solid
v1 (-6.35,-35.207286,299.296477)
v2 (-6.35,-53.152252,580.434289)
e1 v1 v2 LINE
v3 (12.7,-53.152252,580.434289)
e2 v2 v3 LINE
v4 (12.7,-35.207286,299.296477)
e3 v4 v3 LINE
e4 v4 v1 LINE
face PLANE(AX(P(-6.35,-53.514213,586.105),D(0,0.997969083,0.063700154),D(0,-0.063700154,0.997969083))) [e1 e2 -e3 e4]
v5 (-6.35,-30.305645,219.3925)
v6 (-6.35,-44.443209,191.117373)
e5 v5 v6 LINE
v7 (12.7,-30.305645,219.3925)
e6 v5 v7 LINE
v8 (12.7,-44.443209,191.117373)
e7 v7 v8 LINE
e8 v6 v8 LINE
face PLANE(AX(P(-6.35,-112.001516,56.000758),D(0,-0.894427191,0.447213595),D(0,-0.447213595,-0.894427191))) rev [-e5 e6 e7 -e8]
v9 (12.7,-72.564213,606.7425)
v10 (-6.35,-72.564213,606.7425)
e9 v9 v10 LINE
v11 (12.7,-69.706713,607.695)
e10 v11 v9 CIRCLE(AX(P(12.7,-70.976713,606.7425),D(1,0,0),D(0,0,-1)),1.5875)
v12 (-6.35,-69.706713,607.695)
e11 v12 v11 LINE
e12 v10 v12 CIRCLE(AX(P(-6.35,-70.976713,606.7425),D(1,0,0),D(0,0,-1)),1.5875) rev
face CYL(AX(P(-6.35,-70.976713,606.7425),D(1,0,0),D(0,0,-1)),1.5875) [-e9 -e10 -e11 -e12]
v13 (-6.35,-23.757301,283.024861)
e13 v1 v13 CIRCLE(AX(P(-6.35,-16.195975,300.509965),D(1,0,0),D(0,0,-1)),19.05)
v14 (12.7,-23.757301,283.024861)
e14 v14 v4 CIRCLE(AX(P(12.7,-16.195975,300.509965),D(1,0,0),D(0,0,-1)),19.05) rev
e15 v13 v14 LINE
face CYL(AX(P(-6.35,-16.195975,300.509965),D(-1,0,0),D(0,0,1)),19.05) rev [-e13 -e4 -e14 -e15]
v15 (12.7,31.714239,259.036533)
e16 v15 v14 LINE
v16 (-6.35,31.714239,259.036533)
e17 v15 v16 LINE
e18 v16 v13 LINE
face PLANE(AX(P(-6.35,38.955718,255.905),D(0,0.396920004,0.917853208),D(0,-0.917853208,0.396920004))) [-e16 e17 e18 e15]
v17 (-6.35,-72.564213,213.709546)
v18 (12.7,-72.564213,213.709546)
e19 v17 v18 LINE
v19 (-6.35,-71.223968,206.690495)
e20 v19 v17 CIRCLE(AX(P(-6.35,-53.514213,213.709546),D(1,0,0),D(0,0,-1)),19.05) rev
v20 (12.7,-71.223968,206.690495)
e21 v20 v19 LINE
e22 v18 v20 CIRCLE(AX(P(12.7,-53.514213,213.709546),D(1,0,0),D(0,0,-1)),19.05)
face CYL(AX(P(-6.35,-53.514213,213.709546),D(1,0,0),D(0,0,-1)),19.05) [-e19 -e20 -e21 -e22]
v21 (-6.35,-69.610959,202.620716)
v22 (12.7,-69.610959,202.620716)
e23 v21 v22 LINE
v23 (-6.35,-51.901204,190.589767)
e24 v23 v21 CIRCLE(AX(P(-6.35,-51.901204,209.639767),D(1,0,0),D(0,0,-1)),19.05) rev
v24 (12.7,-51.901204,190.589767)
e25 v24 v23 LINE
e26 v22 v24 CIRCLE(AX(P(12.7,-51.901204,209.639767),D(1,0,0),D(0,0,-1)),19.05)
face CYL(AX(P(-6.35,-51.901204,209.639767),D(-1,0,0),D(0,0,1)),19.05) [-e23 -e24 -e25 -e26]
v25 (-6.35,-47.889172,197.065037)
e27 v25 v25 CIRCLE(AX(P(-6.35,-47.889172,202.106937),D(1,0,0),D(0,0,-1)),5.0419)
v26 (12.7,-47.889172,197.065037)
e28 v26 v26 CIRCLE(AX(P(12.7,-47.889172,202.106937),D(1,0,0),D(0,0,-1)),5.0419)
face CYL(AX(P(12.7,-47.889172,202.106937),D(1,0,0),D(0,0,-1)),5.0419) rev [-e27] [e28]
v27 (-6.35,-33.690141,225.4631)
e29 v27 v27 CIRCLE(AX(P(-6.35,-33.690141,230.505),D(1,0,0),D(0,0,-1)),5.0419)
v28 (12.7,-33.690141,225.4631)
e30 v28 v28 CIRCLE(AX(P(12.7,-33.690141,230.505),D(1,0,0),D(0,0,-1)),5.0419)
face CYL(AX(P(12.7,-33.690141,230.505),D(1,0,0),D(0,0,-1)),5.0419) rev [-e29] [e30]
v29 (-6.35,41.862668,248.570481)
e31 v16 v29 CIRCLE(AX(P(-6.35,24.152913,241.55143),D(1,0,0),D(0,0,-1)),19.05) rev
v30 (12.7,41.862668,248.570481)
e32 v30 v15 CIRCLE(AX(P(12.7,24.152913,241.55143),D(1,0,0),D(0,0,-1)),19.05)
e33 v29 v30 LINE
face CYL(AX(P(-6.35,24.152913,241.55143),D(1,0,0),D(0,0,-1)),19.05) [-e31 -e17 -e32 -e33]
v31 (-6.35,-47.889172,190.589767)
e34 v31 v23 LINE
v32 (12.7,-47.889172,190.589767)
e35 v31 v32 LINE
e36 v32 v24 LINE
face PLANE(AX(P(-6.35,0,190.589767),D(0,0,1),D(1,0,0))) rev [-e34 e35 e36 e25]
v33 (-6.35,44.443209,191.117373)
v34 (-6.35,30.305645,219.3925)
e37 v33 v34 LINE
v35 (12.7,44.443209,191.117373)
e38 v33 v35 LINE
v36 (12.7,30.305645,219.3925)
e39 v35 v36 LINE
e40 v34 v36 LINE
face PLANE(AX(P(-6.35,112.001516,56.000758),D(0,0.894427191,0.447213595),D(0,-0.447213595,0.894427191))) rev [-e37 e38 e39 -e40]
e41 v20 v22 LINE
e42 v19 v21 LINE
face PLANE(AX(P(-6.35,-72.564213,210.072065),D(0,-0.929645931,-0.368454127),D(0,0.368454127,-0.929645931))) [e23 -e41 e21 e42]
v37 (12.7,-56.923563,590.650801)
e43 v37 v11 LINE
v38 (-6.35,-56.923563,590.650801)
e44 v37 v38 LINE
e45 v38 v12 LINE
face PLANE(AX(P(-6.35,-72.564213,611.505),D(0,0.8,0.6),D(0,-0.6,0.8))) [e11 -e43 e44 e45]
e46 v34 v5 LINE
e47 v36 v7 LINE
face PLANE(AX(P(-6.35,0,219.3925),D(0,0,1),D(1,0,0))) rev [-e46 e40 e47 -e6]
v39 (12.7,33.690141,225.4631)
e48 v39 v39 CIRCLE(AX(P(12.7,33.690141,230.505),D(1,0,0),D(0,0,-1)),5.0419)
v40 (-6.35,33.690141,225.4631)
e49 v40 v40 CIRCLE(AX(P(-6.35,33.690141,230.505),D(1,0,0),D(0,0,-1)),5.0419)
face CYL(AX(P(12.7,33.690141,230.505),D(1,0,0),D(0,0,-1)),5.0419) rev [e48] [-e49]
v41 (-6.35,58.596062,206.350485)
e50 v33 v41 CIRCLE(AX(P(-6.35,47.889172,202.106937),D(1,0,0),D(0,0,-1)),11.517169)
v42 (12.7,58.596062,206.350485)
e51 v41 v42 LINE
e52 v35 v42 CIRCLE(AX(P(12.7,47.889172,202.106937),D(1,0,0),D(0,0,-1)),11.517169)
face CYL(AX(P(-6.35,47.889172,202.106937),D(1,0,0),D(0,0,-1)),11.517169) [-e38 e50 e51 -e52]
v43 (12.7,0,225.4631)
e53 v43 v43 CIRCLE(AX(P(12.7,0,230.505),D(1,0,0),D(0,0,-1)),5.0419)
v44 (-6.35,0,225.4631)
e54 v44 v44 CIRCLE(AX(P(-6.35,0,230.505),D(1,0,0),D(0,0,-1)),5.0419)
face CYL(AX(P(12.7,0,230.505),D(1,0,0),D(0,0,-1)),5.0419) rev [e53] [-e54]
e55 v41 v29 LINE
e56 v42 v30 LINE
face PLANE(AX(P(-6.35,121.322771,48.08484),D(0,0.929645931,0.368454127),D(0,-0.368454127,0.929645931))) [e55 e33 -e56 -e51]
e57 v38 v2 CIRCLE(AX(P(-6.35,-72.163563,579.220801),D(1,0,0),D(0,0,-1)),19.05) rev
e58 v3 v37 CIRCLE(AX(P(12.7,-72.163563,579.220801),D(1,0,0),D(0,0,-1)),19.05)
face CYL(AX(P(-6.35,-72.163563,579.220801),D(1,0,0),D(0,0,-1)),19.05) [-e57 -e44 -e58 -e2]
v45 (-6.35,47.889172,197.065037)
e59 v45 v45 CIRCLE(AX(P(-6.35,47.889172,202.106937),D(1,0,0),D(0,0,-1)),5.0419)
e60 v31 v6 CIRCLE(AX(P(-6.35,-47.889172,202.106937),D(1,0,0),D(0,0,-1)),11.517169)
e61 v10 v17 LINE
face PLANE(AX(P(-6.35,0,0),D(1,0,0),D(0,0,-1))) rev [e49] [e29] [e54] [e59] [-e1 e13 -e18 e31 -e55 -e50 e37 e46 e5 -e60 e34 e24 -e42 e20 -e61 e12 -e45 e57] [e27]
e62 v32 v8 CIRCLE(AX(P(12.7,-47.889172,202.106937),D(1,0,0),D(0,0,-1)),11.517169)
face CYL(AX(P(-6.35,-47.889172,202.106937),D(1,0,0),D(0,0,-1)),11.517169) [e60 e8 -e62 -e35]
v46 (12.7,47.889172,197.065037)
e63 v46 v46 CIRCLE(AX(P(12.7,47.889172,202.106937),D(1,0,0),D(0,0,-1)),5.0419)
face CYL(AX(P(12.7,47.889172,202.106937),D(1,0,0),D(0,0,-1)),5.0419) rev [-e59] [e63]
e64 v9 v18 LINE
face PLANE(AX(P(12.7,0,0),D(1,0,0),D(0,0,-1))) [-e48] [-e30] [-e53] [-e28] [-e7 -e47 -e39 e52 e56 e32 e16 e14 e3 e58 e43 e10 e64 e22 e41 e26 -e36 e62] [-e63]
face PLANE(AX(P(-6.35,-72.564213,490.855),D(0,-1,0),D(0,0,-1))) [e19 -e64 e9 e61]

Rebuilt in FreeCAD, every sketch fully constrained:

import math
import FreeCAD as App
import Part
import Sketcher
from FreeCAD import Vector
Q = App.Units.Quantity


def edges_at(feature, points):
    """Names of the edges that pass closest to the given points."""
    edges = feature.Shape.Edges
    near = lambda p: min(range(len(edges)), key=lambda i: edges[i].distToShape(Part.Vertex(*p))[0])
    return sorted({f"Edge{near(p) + 1}" for p in points})

doc = App.newDocument("Part")
body = doc.addObject("PartDesign::Body", "Body")

# Sketch on YZ plane
sketch1 = doc.addObject("Sketcher::SketchObject", "Sketch")
body.addObject(sketch1)
sketch1.AttachmentSupport = (doc.YZ_Plane, [""])
sketch1.MapMode = "FlatFace"
sketch1.addGeometry(Part.LineSegment(Vector(0, -93, 0), Vector(51, -55, 0)), False)
sketch1.addGeometry(Part.LineSegment(Vector(51, -55, 0), Vector(51, 161, 0)), False)
sketch1.addGeometry(Part.ArcOfCircle(Part.Circle(Vector(0, 161, 0), Vector(0, 0, 1), 51), math.radians(0), math.radians(180)), False)
sketch1.addGeometry(Part.LineSegment(Vector(-51, 161, 0), Vector(-51, -55, 0)), False)
sketch1.addGeometry(Part.LineSegment(Vector(-51, -55, 0), Vector(0, -93, 0)), False)
sketch1.addGeometry(Part.Circle(Vector(0, 161, 0), Vector(0, 0, 1), 11), False)
sketch1.addGeometry(Part.Circle(Vector(0, 89, 0), Vector(0, 0, 1), 8), False)
sketch1.addGeometry(Part.Circle(Vector(0, 38, 0), Vector(0, 0, 1), 8), False)
sketch1.addGeometry(Part.Circle(Vector(0, 0, 0), Vector(0, 0, 1), 8), False)
sketch1.addConstraint(Sketcher.Constraint("Coincident", 0, 2, 1, 1))
sketch1.addConstraint(Sketcher.Constraint("Tangent", 1, 2, 2, 1))
sketch1.addConstraint(Sketcher.Constraint("Tangent", 2, 2, 3, 1))
sketch1.addConstraint(Sketcher.Constraint("Coincident", 3, 2, 4, 1))
sketch1.addConstraint(Sketcher.Constraint("Coincident", 4, 2, 0, 1))
sketch1.addConstraint(Sketcher.Constraint("Vertical", 1))
sketch1.addConstraint(Sketcher.Constraint("Vertical", 3))
sketch1.addConstraint(Sketcher.Constraint("Coincident", 8, 3, -1, 1))
sketch1.addConstraint(Sketcher.Constraint("Coincident", 5, 3, 2, 3))
sketch1.addConstraint(Sketcher.Constraint("Equal", 6, 7))
sketch1.addConstraint(Sketcher.Constraint("Equal", 7, 8))
sketch1.addConstraint(Sketcher.Constraint("Symmetric", 0, 2, 3, 2, -2))
sketch1.addConstraint(Sketcher.Constraint("PointOnObject", 6, 3, -2))
sketch1.addConstraint(Sketcher.Constraint("PointOnObject", 7, 3, -2))
sketch1.addConstraint(Sketcher.Constraint("PointOnObject", 4, 2, -2))
sketch1.addConstraint(Sketcher.Constraint("Radius", 2, Q("2 in")))
sketch1.addConstraint(Sketcher.Constraint("Diameter", 5, Q("0.875 in")))
sketch1.addConstraint(Sketcher.Constraint("Diameter", 6, Q("0.625 in")))
sketch1.addConstraint(Sketcher.Constraint("DistanceY", 1, 1, 1, 2, Q("8.5 in")))
sketch1.addConstraint(Sketcher.Constraint("DistanceY", 7, 3, 6, 3, Q("2 in")))
sketch1.addConstraint(Sketcher.Constraint("Distance", 0, Q("2.5 in")))
sketch1.addConstraint(Sketcher.Constraint("DistanceY", -1, 1, 6, 3, Q("3.5 in")))
sketch1.addConstraint(Sketcher.Constraint("DistanceY", -1, 1, 2, 3, Q("6.325 in")))
pad1 = doc.addObject("PartDesign::Pad", "Pad")
body.addObject(pad1)
pad1.Profile = sketch1
pad1.Length = Q("0.5 in")

# Sketch on YZ plane
sketch2 = doc.addObject("Sketcher::SketchObject", "Sketch001")
body.addObject(sketch2)
sketch2.AttachmentSupport = (doc.YZ_Plane, [""])
sketch2.MapMode = "FlatFace"
sketch2.addGeometry(Part.Circle(Vector(17.7, -17.7, 0), Vector(0, 0, 1), 2.2), False)
sketch2.addGeometry(Part.Circle(Vector(17.7, 17.7, 0), Vector(0, 0, 1), 2.2), False)
sketch2.addGeometry(Part.Circle(Vector(-17.7, 17.7, 0), Vector(0, 0, 1), 2.2), False)
sketch2.addGeometry(Part.Circle(Vector(-17.7, -17.7, 0), Vector(0, 0, 1), 2.2), False)
sketch2.addConstraint(Sketcher.Constraint("Equal", 0, 1))
sketch2.addConstraint(Sketcher.Constraint("Equal", 1, 2))
sketch2.addConstraint(Sketcher.Constraint("Equal", 2, 3))
sketch2.addConstraint(Sketcher.Constraint("Symmetric", 0, 3, 2, 3, -1, 1))
sketch2.addConstraint(Sketcher.Constraint("Symmetric", 1, 3, 3, 3, -1, 1))
sketch2.addConstraint(Sketcher.Constraint("Symmetric", 1, 3, 2, 3, -2))
sketch2.addConstraint(Sketcher.Constraint("Diameter", 0, Q("0.177 in")))
sketch2.addConstraint(Sketcher.Constraint("DistanceX", -1, 1, 0, 3, Q("0.6965002 in")))
sketch2.addConstraint(Sketcher.Constraint("DistanceY", 0, 3, -1, 1, Q("0.6965002 in")))
doc.recompute()
hole = doc.addObject("PartDesign::Hole", "Hole")
body.addObject(hole)
hole.Profile = sketch2
hole.ThreadType = "None"
hole.Diameter = Q("0.177 in")
hole.DepthType = "ThroughAll"
hole.Reversed = True

# Sketch on YZ plane
sketch3 = doc.addObject("Sketcher::SketchObject", "Sketch002")
body.addObject(sketch3)
sketch3.AttachmentSupport = (doc.YZ_Plane, [""])
sketch3.MapMode = "FlatFace"
sketch3.addGeometry(Part.Circle(Vector(0, 0, 0), Vector(0, 0, 1), 18), False)
sketch3.addConstraint(Sketcher.Constraint("Coincident", 0, 3, -1, 1))
sketch3.addConstraint(Sketcher.Constraint("Diameter", 0, Q("1.45 in")))
pocket1 = doc.addObject("PartDesign::Pocket", "Pocket")
body.addObject(pocket1)
pocket1.Profile = sketch3
pocket1.Type = "ThroughAll"
pocket1.Reversed = True

# Sketch on YZ plane
sketch4 = doc.addObject("Sketcher::SketchObject", "Sketch003")
body.addObject(sketch4)
sketch4.AttachmentSupport = (doc.YZ_Plane, [""])
sketch4.MapMode = "FlatFace"
sketch4.addGeometry(Part.Circle(Vector(0, -55, 0), Vector(0, 0, 1), 10), False)
sketch4.addConstraint(Sketcher.Constraint("PointOnObject", 0, 3, -2))
sketch4.addConstraint(Sketcher.Constraint("Diameter", 0, Q("0.75 in")))
sketch4.addConstraint(Sketcher.Constraint("DistanceY", 0, 3, -1, 1, Q("2.175 in")))
pocket2 = doc.addObject("PartDesign::Pocket", "Pocket001")
body.addObject(pocket2)
pocket2.Profile = sketch4
pocket2.Type = "ThroughAll"
pocket2.Reversed = True

# Sketch on YZ plane
sketch5 = doc.addObject("Sketcher::SketchObject", "Sketch004")
body.addObject(sketch5)
sketch5.AttachmentSupport = (doc.YZ_Plane, [""])
sketch5.MapMode = "FlatFace"
sketch5.AttachmentOffset = App.Placement(Vector(0, 0, 0.5 * 25.4), App.Rotation())
sketch5.addGeometry(Part.LineSegment(Vector(25, 211, 0), Vector(51, 161, 0)), False)
sketch5.addGeometry(Part.LineSegment(Vector(51, 161, 0), Vector(51, 233, 0)), False)
sketch5.addGeometry(Part.LineSegment(Vector(51, 233, 0), Vector(-51, 233, 0)), False)
sketch5.addGeometry(Part.LineSegment(Vector(-51, 233, 0), Vector(-51, 161, 0)), False)
sketch5.addGeometry(Part.LineSegment(Vector(-51, 161, 0), Vector(-25, 211, 0)), False)
sketch5.addGeometry(Part.LineSegment(Vector(-25, 211, 0), Vector(25, 211, 0)), False)
sketch5.addConstraint(Sketcher.Constraint("Coincident", 0, 2, 1, 1))
sketch5.addConstraint(Sketcher.Constraint("Coincident", 1, 2, 2, 1))
sketch5.addConstraint(Sketcher.Constraint("Coincident", 2, 2, 3, 1))
sketch5.addConstraint(Sketcher.Constraint("Coincident", 3, 2, 4, 1))
sketch5.addConstraint(Sketcher.Constraint("Coincident", 4, 2, 5, 1))
sketch5.addConstraint(Sketcher.Constraint("Coincident", 5, 2, 0, 1))
sketch5.addConstraint(Sketcher.Constraint("Vertical", 1))
sketch5.addConstraint(Sketcher.Constraint("Horizontal", 2))
sketch5.addConstraint(Sketcher.Constraint("Vertical", 3))
sketch5.addConstraint(Sketcher.Constraint("Horizontal", 5))
sketch5.addConstraint(Sketcher.Constraint("Symmetric", 0, 2, 3, 2, -2))
sketch5.addConstraint(Sketcher.Constraint("Equal", 0, 4))
sketch5.addConstraint(Sketcher.Constraint("DistanceX", 2, 2, 2, 1, Q("4 in")))
sketch5.addConstraint(Sketcher.Constraint("DistanceX", 5, 1, 5, 2, Q("2 in")))
sketch5.addConstraint(Sketcher.Constraint("DistanceY", 3, 2, 4, 2, Q("2 in")))
sketch5.addConstraint(Sketcher.Constraint("DistanceY", -1, 1, 0, 2, Q("6.325 in")))
sketch5.addConstraint(Sketcher.Constraint("DistanceY", 1, 1, 1, 2, 72.584746))
pocket3 = doc.addObject("PartDesign::Pocket", "Pocket002")
body.addObject(pocket3)
pocket3.Profile = sketch5
pocket3.Type = "ThroughAll"

# Sketch on YZ plane
sketch6 = doc.addObject("Sketcher::SketchObject", "Sketch005")
body.addObject(sketch6)
sketch6.AttachmentSupport = (doc.YZ_Plane, [""])
sketch6.MapMode = "FlatFace"
sketch6.AttachmentOffset = App.Placement(Vector(0, 0, 0.5 * 25.4), App.Rotation())
sketch6.addGeometry(Part.LineSegment(Vector(51, 161, 0), Vector(25, 211, 0)), False)
sketch6.addGeometry(Part.LineSegment(Vector(25, 211, 0), Vector(-25, 211, 0)), False)
sketch6.addGeometry(Part.LineSegment(Vector(-25, 211, 0), Vector(-51, 161, 0)), False)
sketch6.addGeometry(Part.LineSegment(Vector(-51, 161, 0), Vector(-41, 161, 0)), False)
sketch6.addGeometry(Part.LineSegment(Vector(-41, 161, 0), Vector(0, 203, 0)), False)
sketch6.addGeometry(Part.LineSegment(Vector(0, 203, 0), Vector(41, 161, 0)), False)
sketch6.addGeometry(Part.LineSegment(Vector(41, 161, 0), Vector(51, 161, 0)), False)
sketch6.addConstraint(Sketcher.Constraint("Coincident", 0, 2, 1, 1))
sketch6.addConstraint(Sketcher.Constraint("Coincident", 1, 2, 2, 1))
sketch6.addConstraint(Sketcher.Constraint("Coincident", 2, 2, 3, 1))
sketch6.addConstraint(Sketcher.Constraint("Coincident", 3, 2, 4, 1))
sketch6.addConstraint(Sketcher.Constraint("Coincident", 4, 2, 5, 1))
sketch6.addConstraint(Sketcher.Constraint("Coincident", 5, 2, 6, 1))
sketch6.addConstraint(Sketcher.Constraint("Coincident", 6, 2, 0, 1))
sketch6.addConstraint(Sketcher.Constraint("Horizontal", 1))
sketch6.addConstraint(Sketcher.Constraint("Horizontal", 3))
sketch6.addConstraint(Sketcher.Constraint("Horizontal", 6))
sketch6.addConstraint(Sketcher.Constraint("Symmetric", 3, 2, 5, 2, -2))
sketch6.addConstraint(Sketcher.Constraint("PointOnObject", 4, 2, -2))
sketch6.addConstraint(Sketcher.Constraint("Equal", 3, 6))
sketch6.addConstraint(Sketcher.Constraint("Equal", 0, 2))
sketch6.addConstraint(Sketcher.Constraint("DistanceX", 1, 2, 1, 1, Q("2 in")))
sketch6.addConstraint(Sketcher.Constraint("DistanceX", 3, 1, 3, 2, Q("0.4 in")))
sketch6.addConstraint(Sketcher.Constraint("DistanceX", 2, 2, -1, 1, Q("2 in")))
sketch6.addConstraint(Sketcher.Constraint("DistanceY", 2, 2, 1, 2, Q("2 in")))
sketch6.addConstraint(Sketcher.Constraint("DistanceY", -1, 1, 0, 2, Q("8.325 in")))
sketch6.addConstraint(Sketcher.Constraint("Distance", 4, 58.511039))
pad2 = doc.addObject("PartDesign::Pad", "Pad001")
body.addObject(pad2)
pad2.Profile = sketch6
pad2.Length = Q("0.5 in")
pad2.Reversed = True

# Sketch on YZ plane
sketch7 = doc.addObject("Sketcher::SketchObject", "Sketch006")
body.addObject(sketch7)
sketch7.AttachmentSupport = (doc.YZ_Plane, [""])
sketch7.MapMode = "FlatFace"
sketch7.addGeometry(Part.LineSegment(Vector(-19, -79, 0), Vector(19, -79, 0)), False)
sketch7.addGeometry(Part.LineSegment(Vector(19, -79, 0), Vector(0, -93, 0)), False)
sketch7.addGeometry(Part.LineSegment(Vector(0, -93, 0), Vector(-19, -79, 0)), False)
sketch7.addConstraint(Sketcher.Constraint("Coincident", 0, 2, 1, 1))
sketch7.addConstraint(Sketcher.Constraint("Coincident", 1, 2, 2, 1))
sketch7.addConstraint(Sketcher.Constraint("Coincident", 2, 2, 0, 1))
sketch7.addConstraint(Sketcher.Constraint("Horizontal", 0))
sketch7.addConstraint(Sketcher.Constraint("PointOnObject", 1, 2, -2))
sketch7.addConstraint(Sketcher.Constraint("Equal", 1, 2))
sketch7.addConstraint(Sketcher.Constraint("DistanceX", 0, 1, 0, 2, Q("1.5 in")))
sketch7.addConstraint(Sketcher.Constraint("Distance", 1, Q("0.9375 in")))
sketch7.addConstraint(Sketcher.Constraint("DistanceY", 1, 2, -1, 1, Q("3.675 in")))
pocket4 = doc.addObject("PartDesign::Pocket", "Pocket003")
body.addObject(pocket4)
pocket4.Profile = sketch7
pocket4.Type = "ThroughAll"
pocket4.Reversed = True

# Sketch on XZ plane
sketch8 = doc.addObject("Sketcher::SketchObject", "Sketch007")
body.addObject(sketch8)
sketch8.AttachmentSupport = (doc.XZ_Plane, [""])
sketch8.MapMode = "FlatFace"
sketch8.AttachmentOffset = App.Placement(Vector(0, 0, -2 * 25.4), App.Rotation())
sketch8.addGeometry(Part.LineSegment(Vector(0, -36, 0), Vector(0, 142, 0)), False)
sketch8.addGeometry(Part.LineSegment(Vector(0, 142, 0), Vector(13, 142, 0)), False)
sketch8.addGeometry(Part.LineSegment(Vector(13, 142, 0), Vector(13, -36, 0)), False)
sketch8.addGeometry(Part.LineSegment(Vector(13, -36, 0), Vector(0, -36, 0)), False)
sketch8.addConstraint(Sketcher.Constraint("Coincident", 0, 2, 1, 1))
sketch8.addConstraint(Sketcher.Constraint("Coincident", 1, 2, 2, 1))
sketch8.addConstraint(Sketcher.Constraint("Coincident", 2, 2, 3, 1))
sketch8.addConstraint(Sketcher.Constraint("Coincident", 3, 2, 0, 1))
sketch8.addConstraint(Sketcher.Constraint("Vertical", 0))
sketch8.addConstraint(Sketcher.Constraint("Horizontal", 1))
sketch8.addConstraint(Sketcher.Constraint("Vertical", 2))
sketch8.addConstraint(Sketcher.Constraint("Horizontal", 3))
sketch8.addConstraint(Sketcher.Constraint("PointOnObject", 0, 2, -2))
sketch8.addConstraint(Sketcher.Constraint("DistanceX", 1, 1, 1, 2, Q("0.5 in")))
sketch8.addConstraint(Sketcher.Constraint("DistanceY", 0, 1, 0, 2, Q("7.01 in")))
sketch8.addConstraint(Sketcher.Constraint("DistanceY", -1, 1, 0, 2, Q("5.58 in")))
pocket5 = doc.addObject("PartDesign::Pocket", "Pocket004")
body.addObject(pocket5)
pocket5.Profile = sketch8
pocket5.Length = Q("0.125 in")
pocket5.Reversed = True
doc.recompute()

mirrored = doc.addObject("PartDesign::Mirrored", "Mirrored")
body.addObject(mirrored)
mirrored.Originals = [pocket5]
mirrored.MirrorPlane = (doc.XZ_Plane, [""])
body.Tip = mirrored

# Sketch on YZ plane
sketch9 = doc.addObject("Sketcher::SketchObject", "Sketch008")
body.addObject(sketch9)
sketch9.AttachmentSupport = (doc.YZ_Plane, [""])
sketch9.MapMode = "FlatFace"
sketch9.AttachmentOffset = App.Placement(Vector(0, 0, 0.5 * 25.4), App.Rotation())
sketch9.addGeometry(Part.LineSegment(Vector(-53.3, 161.3, 0), Vector(-53.3, 139.2, 0)), False)
sketch9.addGeometry(Part.LineSegment(Vector(-53.3, 139.2, 0), Vector(-50.2, 139.2, 0)), False)
sketch9.addGeometry(Part.LineSegment(Vector(-50.2, 139.2, 0), Vector(-50.2, -33.8, 0)), False)
sketch9.addGeometry(Part.LineSegment(Vector(-50.2, -33.8, 0), Vector(-53.3, -33.8, 0)), False)
sketch9.addGeometry(Part.LineSegment(Vector(-53.3, -33.8, 0), Vector(-53.3, -56.5, 0)), False)
sketch9.addGeometry(Part.LineSegment(Vector(-53.3, -56.5, 0), Vector(-19.9, -81.6, 0)), False)
sketch9.addGeometry(Part.LineSegment(Vector(-19.9, -81.6, 0), Vector(19.9, -81.6, 0)), False)
sketch9.addGeometry(Part.LineSegment(Vector(19.9, -81.6, 0), Vector(53.3, -56.5, 0)), False)
sketch9.addGeometry(Part.LineSegment(Vector(53.3, -56.5, 0), Vector(53.3, -33.8, 0)), False)
sketch9.addGeometry(Part.LineSegment(Vector(53.3, -33.8, 0), Vector(50.2, -33.8, 0)), False)
sketch9.addGeometry(Part.LineSegment(Vector(50.2, -33.8, 0), Vector(50.2, 139.2, 0)), False)
sketch9.addGeometry(Part.LineSegment(Vector(50.2, 139.2, 0), Vector(53.3, 139.2, 0)), False)
sketch9.addGeometry(Part.LineSegment(Vector(53.3, 139.2, 0), Vector(53.3, 161.3, 0)), False)
sketch9.addGeometry(Part.LineSegment(Vector(53.3, 161.3, 0), Vector(27, 214, 0)), False)
sketch9.addGeometry(Part.LineSegment(Vector(27, 214, 0), Vector(-27, 214, 0)), False)
sketch9.addGeometry(Part.LineSegment(Vector(-27, 214, 0), Vector(-53.3, 161.3, 0)), False)
sketch9.addConstraint(Sketcher.Constraint("Coincident", 0, 2, 1, 1))
sketch9.addConstraint(Sketcher.Constraint("Coincident", 1, 2, 2, 1))
sketch9.addConstraint(Sketcher.Constraint("Coincident", 2, 2, 3, 1))
sketch9.addConstraint(Sketcher.Constraint("Coincident", 3, 2, 4, 1))
sketch9.addConstraint(Sketcher.Constraint("Coincident", 4, 2, 5, 1))
sketch9.addConstraint(Sketcher.Constraint("Coincident", 5, 2, 6, 1))
sketch9.addConstraint(Sketcher.Constraint("Coincident", 6, 2, 7, 1))
sketch9.addConstraint(Sketcher.Constraint("Coincident", 7, 2, 8, 1))
sketch9.addConstraint(Sketcher.Constraint("Coincident", 8, 2, 9, 1))
sketch9.addConstraint(Sketcher.Constraint("Coincident", 9, 2, 10, 1))
sketch9.addConstraint(Sketcher.Constraint("Coincident", 10, 2, 11, 1))
sketch9.addConstraint(Sketcher.Constraint("Coincident", 11, 2, 12, 1))
sketch9.addConstraint(Sketcher.Constraint("Coincident", 12, 2, 13, 1))
sketch9.addConstraint(Sketcher.Constraint("Coincident", 13, 2, 14, 1))
sketch9.addConstraint(Sketcher.Constraint("Coincident", 14, 2, 15, 1))
sketch9.addConstraint(Sketcher.Constraint("Coincident", 15, 2, 0, 1))
sketch9.addConstraint(Sketcher.Constraint("Vertical", 0))
sketch9.addConstraint(Sketcher.Constraint("Horizontal", 1))
sketch9.addConstraint(Sketcher.Constraint("Vertical", 2))
sketch9.addConstraint(Sketcher.Constraint("Horizontal", 3))
sketch9.addConstraint(Sketcher.Constraint("Vertical", 4))
sketch9.addConstraint(Sketcher.Constraint("Horizontal", 6))
sketch9.addConstraint(Sketcher.Constraint("Vertical", 8))
sketch9.addConstraint(Sketcher.Constraint("Horizontal", 9))
sketch9.addConstraint(Sketcher.Constraint("Vertical", 10))
sketch9.addConstraint(Sketcher.Constraint("Horizontal", 11))
sketch9.addConstraint(Sketcher.Constraint("Vertical", 12))
sketch9.addConstraint(Sketcher.Constraint("Horizontal", 14))
sketch9.addConstraint(Sketcher.Constraint("Symmetric", 4, 2, 7, 2, -2))
sketch9.addConstraint(Sketcher.Constraint("Symmetric", 2, 2, 9, 2, -2))
sketch9.addConstraint(Sketcher.Constraint("Symmetric", 0, 2, 11, 2, -2))
sketch9.addConstraint(Sketcher.Constraint("Horizontal", 12, 2, 15, 2))
sketch9.addConstraint(Sketcher.Constraint("Vertical", 0, 2, 3, 2))
sketch9.addConstraint(Sketcher.Constraint("Equal", 5, 7))
sketch9.addConstraint(Sketcher.Constraint("Equal", 13, 15))
sketch9.addConstraint(Sketcher.Constraint("DistanceY", 2, 2, 2, 1, Q("6.81 in")))
sketch9.addConstraint(Sketcher.Constraint("DistanceX", 0, 2, -1, 1, Q("2.1 in")))
sketch9.addConstraint(Sketcher.Constraint("DistanceX", 1, 1, 1, 2, Q("0.125 in")))
sketch9.addConstraint(Sketcher.Constraint("DistanceY", 4, 2, 4, 1, Q("0.895 in")))
sketch9.addConstraint(Sketcher.Constraint("DistanceY", -1, 1, 0, 2, Q("5.48 in")))
sketch9.addConstraint(Sketcher.Constraint("DistanceY", -1, 1, 13, 2, Q("8.425 in")))
sketch9.addConstraint(Sketcher.Constraint("DistanceY", 5, 2, -1, 1, Q("3.2125 in")))
sketch9.addConstraint(Sketcher.Constraint("DistanceX", 6, 1, 6, 2, 39.793333))
sketch9.addConstraint(Sketcher.Constraint("DistanceX", 14, 2, 14, 1, 53.939613))
sketch9.addConstraint(Sketcher.Constraint("DistanceY", 0, 2, 0, 1, 22.062613))
pocket6 = doc.addObject("PartDesign::Pocket", "Pocket005")
body.addObject(pocket6)
pocket6.Profile = sketch9
pocket6.Type = "ThroughAll"
body2 = doc.addObject("PartDesign::Body", "Body001")

# Sketch on YZ plane
sketch10 = doc.addObject("Sketcher::SketchObject", "Sketch009")
body2.addObject(sketch10)
sketch10.AttachmentSupport = (doc.getObject("YZ_Plane001"), [""])
sketch10.MapMode = "FlatFace"
sketch10.AttachmentOffset = App.Placement(Vector(0, 0, 0.5 * 25.4), App.Rotation())
sketch10.addGeometry(Part.LineSegment(Vector(56, 212, 0), Vector(44, 243, 0)), False)
sketch10.addGeometry(Part.LineSegment(Vector(44, 243, 0), Vector(-44, 243, 0)), False)
sketch10.addGeometry(Part.LineSegment(Vector(-44, 243, 0), Vector(-56, 212, 0)), False)
sketch10.addGeometry(Part.LineSegment(Vector(-56, 212, 0), Vector(-67, 186, 0)), False)
sketch10.addGeometry(Part.LineSegment(Vector(-67, 186, 0), Vector(-67, 167, 0)), False)
sketch10.addGeometry(Part.LineSegment(Vector(-67, 167, 0), Vector(-57, 162, 0)), False)
sketch10.addGeometry(Part.LineSegment(Vector(-57, 162, 0), Vector(-29, 218, 0)), False)
sketch10.addGeometry(Part.LineSegment(Vector(-29, 218, 0), Vector(29, 218, 0)), False)
sketch10.addGeometry(Part.LineSegment(Vector(29, 218, 0), Vector(57, 162, 0)), False)
sketch10.addGeometry(Part.LineSegment(Vector(57, 162, 0), Vector(67, 167, 0)), False)
sketch10.addGeometry(Part.LineSegment(Vector(67, 167, 0), Vector(67, 186, 0)), False)
sketch10.addGeometry(Part.LineSegment(Vector(67, 186, 0), Vector(56, 212, 0)), False)
sketch10.addConstraint(Sketcher.Constraint("Coincident", 0, 2, 1, 1))
sketch10.addConstraint(Sketcher.Constraint("Coincident", 1, 2, 2, 1))
sketch10.addConstraint(Sketcher.Constraint("Coincident", 2, 2, 3, 1))
sketch10.addConstraint(Sketcher.Constraint("Coincident", 3, 2, 4, 1))
sketch10.addConstraint(Sketcher.Constraint("Coincident", 4, 2, 5, 1))
sketch10.addConstraint(Sketcher.Constraint("Coincident", 5, 2, 6, 1))
sketch10.addConstraint(Sketcher.Constraint("Coincident", 6, 2, 7, 1))
sketch10.addConstraint(Sketcher.Constraint("Coincident", 7, 2, 8, 1))
sketch10.addConstraint(Sketcher.Constraint("Coincident", 8, 2, 9, 1))
sketch10.addConstraint(Sketcher.Constraint("Coincident", 9, 2, 10, 1))
sketch10.addConstraint(Sketcher.Constraint("Coincident", 10, 2, 11, 1))
sketch10.addConstraint(Sketcher.Constraint("Coincident", 11, 2, 0, 1))
sketch10.addConstraint(Sketcher.Constraint("Horizontal", 1))
sketch10.addConstraint(Sketcher.Constraint("Vertical", 4))
sketch10.addConstraint(Sketcher.Constraint("Horizontal", 7))
sketch10.addConstraint(Sketcher.Constraint("Vertical", 10))
sketch10.addConstraint(Sketcher.Constraint("Symmetric", 5, 2, 8, 2, -2))
sketch10.addConstraint(Sketcher.Constraint("Symmetric", 4, 2, 9, 2, -2))
sketch10.addConstraint(Sketcher.Constraint("Symmetric", 2, 2, 11, 2, -2))
sketch10.addConstraint(Sketcher.Constraint("Parallel", 2, 3))
sketch10.addConstraint(Sketcher.Constraint("Perpendicular", 5, 6))
sketch10.addConstraint(Sketcher.Constraint("Perpendicular", 8, 9))
sketch10.addConstraint(Sketcher.Constraint("Parallel", 0, 11))
sketch10.addConstraint(Sketcher.Constraint("Horizontal", 3, 2, 10, 2))
sketch10.addConstraint(Sketcher.Constraint("DistanceY", 6, 2, 1, 2, Q("1 in")))
sketch10.addConstraint(Sketcher.Constraint("DistanceY", 4, 2, 4, 1, Q("0.75 in")))
sketch10.addConstraint(Sketcher.Constraint("DistanceX", 5, 2, 8, 2, Q("4.5 in")))
sketch10.addConstraint(Sketcher.Constraint("DistanceY", -1, 1, 0, 2, Q("9.575 in")))
sketch10.addConstraint(Sketcher.Constraint("DistanceX", 3, 2, -1, 1, Q("2.625 in")))
sketch10.addConstraint(Sketcher.Constraint("DistanceY", 5, 2, 4, 2, Q("0.1875 in")))
sketch10.addConstraint(Sketcher.Constraint("DistanceX", 7, 1, 7, 2, 58.649032))
sketch10.addConstraint(Sketcher.Constraint("DistanceX", 1, 2, 1, 1, 87.978425))
sketch10.addConstraint(Sketcher.Constraint("DistanceX", 2, 2, -1, 1, 56.39784))
pad3 = doc.addObject("PartDesign::Pad", "Pad002")
body2.addObject(pad3)
pad3.Profile = sketch10
pad3.Length = Q("0.75 in")
pad3.Reversed = True

# Sketch on YZ plane
sketch11 = doc.addObject("Sketcher::SketchObject", "Sketch010")
body2.addObject(sketch11)
sketch11.AttachmentSupport = (doc.getObject("YZ_Plane001"), [""])
sketch11.MapMode = "FlatFace"
sketch11.AttachmentOffset = App.Placement(Vector(0, 0, 0.5 * 25.4), App.Rotation())
sketch11.addGeometry(Part.Circle(Vector(0, 231, 0), Vector(0, 0, 1), 5), False)
sketch11.addGeometry(Part.Circle(Vector(34, 231, 0), Vector(0, 0, 1), 5), False)
sketch11.addGeometry(Part.Circle(Vector(48, 202, 0), Vector(0, 0, 1), 5), False)
sketch11.addGeometry(Part.Circle(Vector(-34, 231, 0), Vector(0, 0, 1), 5), False)
sketch11.addGeometry(Part.Circle(Vector(-48, 202, 0), Vector(0, 0, 1), 5), False)
sketch11.addConstraint(Sketcher.Constraint("Equal", 0, 1))
sketch11.addConstraint(Sketcher.Constraint("Equal", 1, 2))
sketch11.addConstraint(Sketcher.Constraint("Equal", 2, 3))
sketch11.addConstraint(Sketcher.Constraint("Equal", 3, 4))
sketch11.addConstraint(Sketcher.Constraint("Symmetric", 1, 3, 3, 3, -2))
sketch11.addConstraint(Sketcher.Constraint("Symmetric", 2, 3, 4, 3, -2))
sketch11.addConstraint(Sketcher.Constraint("PointOnObject", 0, 3, -2))
sketch11.addConstraint(Sketcher.Constraint("Horizontal", 0, 3, 1, 3))
sketch11.addConstraint(Sketcher.Constraint("Diameter", 0, Q("0.397 in")))
sketch11.addConstraint(Sketcher.Constraint("DistanceY", -1, 1, 0, 3, Q("9.075 in")))
sketch11.addConstraint(Sketcher.Constraint("DistanceX", -1, 1, 1, 3, 33.690141))
sketch11.addConstraint(Sketcher.Constraint("DistanceX", 1, 3, 2, 3, 14.199032))
sketch11.addConstraint(Sketcher.Constraint("DistanceY", -1, 1, 2, 3, 202.106937))
doc.recompute()
hole2 = doc.addObject("PartDesign::Hole", "Hole001")
body2.addObject(hole2)
hole2.Profile = sketch11
hole2.ThreadType = "None"
hole2.Diameter = Q("0.397 in")
hole2.DepthType = "ThroughAll"

# Sketch on YZ plane
sketch12 = doc.addObject("Sketcher::SketchObject", "Sketch011")
body2.addObject(sketch12)
sketch12.AttachmentSupport = (doc.getObject("YZ_Plane001"), [""])
sketch12.MapMode = "FlatFace"
sketch12.AttachmentOffset = App.Placement(Vector(0, 0, 0.5 * 25.4), App.Rotation())
sketch12.addGeometry(Part.ArcOfCircle(Part.Circle(Vector(47.9, 202.1, 0), Vector(0, 0, 1), 11.5), math.radians(-107.41), math.radians(-90)), False)
sketch12.addGeometry(Part.LineSegment(Vector(44.4, 191.1, 0), Vector(37, 205.9, 0)), False)
sketch12.addGeometry(Part.LineSegment(Vector(37, 205.9, 0), Vector(30.3, 219.4, 0)), False)
sketch12.addGeometry(Part.LineSegment(Vector(30.3, 219.4, 0), Vector(-30.3, 219.4, 0)), False)
sketch12.addGeometry(Part.LineSegment(Vector(-30.3, 219.4, 0), Vector(-37, 205.9, 0)), False)
sketch12.addGeometry(Part.LineSegment(Vector(-37, 205.9, 0), Vector(-44.4, 191.1, 0)), False)
sketch12.addGeometry(Part.ArcOfCircle(Part.Circle(Vector(-47.9, 202.1, 0), Vector(0, 0, 1), 11.5), math.radians(-90), math.radians(-72.59)), False)
sketch12.addGeometry(Part.LineSegment(Vector(-47.9, 190.6, 0), Vector(-64.8, 190.6, 0)), False)
sketch12.addGeometry(Part.LineSegment(Vector(-64.8, 190.6, 0), Vector(-66.7, 186, 0)), False)
sketch12.addGeometry(Part.LineSegment(Vector(-66.7, 186, 0), Vector(-66.7, 166.9, 0)), False)
sketch12.addGeometry(Part.LineSegment(Vector(-66.7, 166.9, 0), Vector(-57.1, 162.2, 0)), False)
sketch12.addGeometry(Part.LineSegment(Vector(-57.1, 162.2, 0), Vector(-42.2, 192.1, 0)), False)
sketch12.addGeometry(Part.LineSegment(Vector(-42.2, 192.1, 0), Vector(-36.5, 203.5, 0)), False)
sketch12.addGeometry(Part.LineSegment(Vector(-36.5, 203.5, 0), Vector(-29.3, 217.8, 0)), False)
sketch12.addGeometry(Part.LineSegment(Vector(-29.3, 217.8, 0), Vector(29.3, 217.8, 0)), False)
sketch12.addGeometry(Part.LineSegment(Vector(29.3, 217.8, 0), Vector(36.5, 203.5, 0)), False)
sketch12.addGeometry(Part.LineSegment(Vector(36.5, 203.5, 0), Vector(42.2, 192.1, 0)), False)
sketch12.addGeometry(Part.LineSegment(Vector(42.2, 192.1, 0), Vector(57.1, 162.2, 0)), False)
sketch12.addGeometry(Part.LineSegment(Vector(57.1, 162.2, 0), Vector(66.7, 166.9, 0)), False)
sketch12.addGeometry(Part.LineSegment(Vector(66.7, 166.9, 0), Vector(66.7, 186, 0)), False)
sketch12.addGeometry(Part.LineSegment(Vector(66.7, 186, 0), Vector(58.6, 206.4, 0)), False)
sketch12.addGeometry(Part.ArcOfCircle(Part.Circle(Vector(47.9, 202.1, 0), Vector(0, 0, 1), 11.5), math.radians(-90), math.radians(22)), False)
sketch12.addConstraint(Sketcher.Constraint("Coincident", 0, 1, 1, 1))
sketch12.addConstraint(Sketcher.Constraint("Coincident", 1, 2, 2, 1))
sketch12.addConstraint(Sketcher.Constraint("Coincident", 2, 2, 3, 1))
sketch12.addConstraint(Sketcher.Constraint("Coincident", 3, 2, 4, 1))
sketch12.addConstraint(Sketcher.Constraint("Coincident", 4, 2, 5, 1))
sketch12.addConstraint(Sketcher.Constraint("Coincident", 5, 2, 6, 2))
sketch12.addConstraint(Sketcher.Constraint("Tangent", 6, 1, 7, 1))
sketch12.addConstraint(Sketcher.Constraint("Coincident", 7, 2, 8, 1))
sketch12.addConstraint(Sketcher.Constraint("Coincident", 8, 2, 9, 1))
sketch12.addConstraint(Sketcher.Constraint("Coincident", 9, 2, 10, 1))
sketch12.addConstraint(Sketcher.Constraint("Coincident", 10, 2, 11, 1))
sketch12.addConstraint(Sketcher.Constraint("Coincident", 11, 2, 12, 1))
sketch12.addConstraint(Sketcher.Constraint("Coincident", 12, 2, 13, 1))
sketch12.addConstraint(Sketcher.Constraint("Coincident", 13, 2, 14, 1))
sketch12.addConstraint(Sketcher.Constraint("Coincident", 14, 2, 15, 1))
sketch12.addConstraint(Sketcher.Constraint("Coincident", 15, 2, 16, 1))
sketch12.addConstraint(Sketcher.Constraint("Coincident", 16, 2, 17, 1))
sketch12.addConstraint(Sketcher.Constraint("Coincident", 17, 2, 18, 1))
sketch12.addConstraint(Sketcher.Constraint("Coincident", 18, 2, 19, 1))
sketch12.addConstraint(Sketcher.Constraint("Coincident", 19, 2, 20, 1))
sketch12.addConstraint(Sketcher.Constraint("Tangent", 20, 2, 21, 2))
sketch12.addConstraint(Sketcher.Constraint("Tangent", 21, 1, 0, 2))
sketch12.addConstraint(Sketcher.Constraint("Horizontal", 3))
sketch12.addConstraint(Sketcher.Constraint("Horizontal", 7))
sketch12.addConstraint(Sketcher.Constraint("Vertical", 9))
sketch12.addConstraint(Sketcher.Constraint("Horizontal", 14))
sketch12.addConstraint(Sketcher.Constraint("Vertical", 19))
sketch12.addConstraint(Sketcher.Constraint("Equal", 0, 6))
sketch12.addConstraint(Sketcher.Constraint("Equal", 6, 21))
sketch12.addConstraint(Sketcher.Constraint("Symmetric", 0, 3, 6, 3, -2))
sketch12.addConstraint(Sketcher.Constraint("Symmetric", 1, 2, 4, 2, -2))
sketch12.addConstraint(Sketcher.Constraint("Symmetric", 12, 2, 15, 2, -2))
sketch12.addConstraint(Sketcher.Constraint("Symmetric", 11, 2, 16, 2, -2))
sketch12.addConstraint(Sketcher.Constraint("Symmetric", 10, 2, 17, 2, -2))
sketch12.addConstraint(Sketcher.Constraint("Symmetric", 9, 2, 18, 2, -2))
sketch12.addConstraint(Sketcher.Constraint("Parallel", 1, 2))
sketch12.addConstraint(Sketcher.Constraint("Parallel", 4, 5))
sketch12.addConstraint(Sketcher.Constraint("Perpendicular", 5, 10))
sketch12.addConstraint(Sketcher.Constraint("Perpendicular", 10, 11))
sketch12.addConstraint(Sketcher.Constraint("Parallel", 11, 12))
sketch12.addConstraint(Sketcher.Constraint("Parallel", 12, 13))
sketch12.addConstraint(Sketcher.Constraint("Parallel", 2, 15))
sketch12.addConstraint(Sketcher.Constraint("Parallel", 15, 16))
sketch12.addConstraint(Sketcher.Constraint("Horizontal", 8, 2, 19, 2))
sketch12.addConstraint(Sketcher.Constraint("Vertical", 0, 3, 21, 1))
sketch12.addConstraint(Sketcher.Constraint("DistanceY", 9, 2, 9, 1, Q("0.75 in")))
sketch12.addConstraint(Sketcher.Constraint("DistanceX", 10, 2, -1, 1, Q("2.25 in")))
sketch12.addConstraint(Sketcher.Constraint("DistanceX", 8, 2, -1, 1, Q("2.625 in")))
sketch12.addConstraint(Sketcher.Constraint("DistanceY", -1, 1, 13, 2, Q("8.575 in")))
sketch12.addConstraint(Sketcher.Constraint("Radius", 0, 11.517169))
sketch12.addConstraint(Sketcher.Constraint("DistanceY", 10, 2, 9, 2, Q("0.1875 in")))
sketch12.addConstraint(Sketcher.Constraint("DistanceY", 13, 2, 3, 2, Q("0.0625 in")))
sketch12.addConstraint(Sketcher.Constraint("DistanceX", 3, 2, 3, 1, 60.61129))
sketch12.addConstraint(Sketcher.Constraint("DistanceX", 14, 1, 14, 2, 58.649032))
sketch12.addConstraint(Sketcher.Constraint("DistanceX", 2, 2, 1, 2, 6.724298))
sketch12.addConstraint(Sketcher.Constraint("DistanceX", 7, 2, 11, 2, 22.669899))
sketch12.addConstraint(Sketcher.Constraint("DistanceX", 5, 2, 12, 2, 7.982599))
sketch12.addConstraint(Sketcher.Constraint("Distance", 11, 33.490181))
sketch12.addConstraint(Sketcher.Constraint("Distance", 13, 15.956789))
sketch12.addConstraint(Sketcher.Constraint("DistanceX", 7, 2, 7, 1, 16.953463))
pocket7 = doc.addObject("PartDesign::Pocket", "Pocket006")
body2.addObject(pocket7)
pocket7.Profile = sketch12
pocket7.Type = "ThroughAll"

# Sketch on YZ plane
sketch13 = doc.addObject("Sketcher::SketchObject", "Sketch012")
body2.addObject(sketch13)
sketch13.AttachmentSupport = (doc.getObject("YZ_Plane001"), [""])
sketch13.MapMode = "FlatFace"
sketch13.AttachmentOffset = App.Placement(Vector(0, 0, 0.5 * 25.4), App.Rotation())
sketch13.addGeometry(Part.LineSegment(Vector(-73, 210, 0), Vector(-65, 191, 0)), False)
sketch13.addGeometry(Part.LineSegment(Vector(-65, 191, 0), Vector(-44, 243, 0)), False)
sketch13.addGeometry(Part.LineSegment(Vector(-44, 243, 0), Vector(44, 243, 0)), False)
sketch13.addGeometry(Part.LineSegment(Vector(44, 243, 0), Vector(39, 256, 0)), False)
sketch13.addGeometry(Part.LineSegment(Vector(39, 256, 0), Vector(-34, 288, 0)), False)
sketch13.addGeometry(Part.LineSegment(Vector(-34, 288, 0), Vector(-54, 586, 0)), False)
sketch13.addGeometry(Part.LineSegment(Vector(-54, 586, 0), Vector(-73, 612, 0)), False)
sketch13.addGeometry(Part.LineSegment(Vector(-73, 612, 0), Vector(-73, 210, 0)), False)
sketch13.addConstraint(Sketcher.Constraint("Coincident", 0, 2, 1, 1))
sketch13.addConstraint(Sketcher.Constraint("Coincident", 1, 2, 2, 1))
sketch13.addConstraint(Sketcher.Constraint("Coincident", 2, 2, 3, 1))
sketch13.addConstraint(Sketcher.Constraint("Coincident", 3, 2, 4, 1))
sketch13.addConstraint(Sketcher.Constraint("Coincident", 4, 2, 5, 1))
sketch13.addConstraint(Sketcher.Constraint("Coincident", 5, 2, 6, 1))
sketch13.addConstraint(Sketcher.Constraint("Coincident", 6, 2, 7, 1))
sketch13.addConstraint(Sketcher.Constraint("Coincident", 7, 2, 0, 1))
sketch13.addConstraint(Sketcher.Constraint("Horizontal", 2))
sketch13.addConstraint(Sketcher.Constraint("Vertical", 7))
sketch13.addConstraint(Sketcher.Constraint("Parallel", 0, 3))
sketch13.addConstraint(Sketcher.Constraint("DistanceY", 3, 2, 5, 2, Q("13 in")))
sketch13.addConstraint(Sketcher.Constraint("DistanceY", 5, 2, 6, 2, Q("1 in")))
sketch13.addConstraint(Sketcher.Constraint("DistanceY", 2, 2, 3, 2, Q("0.5 in")))
sketch13.addConstraint(Sketcher.Constraint("DistanceX", 6, 2, 4, 2, Q("1.5 in")))
sketch13.addConstraint(Sketcher.Constraint("Distance", 6, Q("1.25 in")))
sketch13.addConstraint(Sketcher.Constraint("DistanceY", 1, 2, 4, 2, Q("1.75 in")))
sketch13.addConstraint(Sketcher.Constraint("DistanceY", -1, 1, 1, 2, Q("9.575 in")))
sketch13.addConstraint(Sketcher.Constraint("DistanceX", 1, 2, 4, 2, Q("0.375 in")))
sketch13.addConstraint(Sketcher.Constraint("Distance", 4, 79.990929))
sketch13.addConstraint(Sketcher.Constraint("DistanceX", 2, 1, 2, 2, 87.978425))
sketch13.addConstraint(Sketcher.Constraint("DistanceY", 7, 2, 7, 1, 401.432935))
sketch13.addConstraint(Sketcher.Constraint("DistanceX", -1, 1, 3, 2, 38.955718))
sketch13.addConstraint(Sketcher.Constraint("DistanceX", 0, 2, 2, 2, 108.831848))
pad4 = doc.addObject("PartDesign::Pad", "Pad003")
body2.addObject(pad4)
pad4.Profile = sketch13
pad4.Length = Q("0.75 in")
pad4.Reversed = True
doc.recompute()

fillet = doc.addObject("PartDesign::Fillet", "Fillet")
body2.addObject(fillet)
fillet.Base = (pad4, edges_at(pad4, [
    (3.175, -72.564, 210.072),
    (3.175, -53.514, 586.105),
    (3.175, -34.464, 287.655),
    (3.175, 38.956, 255.905),
    (3.175, -64.843, 190.59),
]))
fillet.Radius = Q("0.75 in")
doc.recompute()

fillet2 = doc.addObject("PartDesign::Fillet", "Fillet001")
body2.addObject(fillet2)
fillet2.Base = (fillet, edges_at(fillet, [(3.175, -72.564, 611.505)]))
fillet2.Radius = Q("0.0625 in")

doc.recompute()
